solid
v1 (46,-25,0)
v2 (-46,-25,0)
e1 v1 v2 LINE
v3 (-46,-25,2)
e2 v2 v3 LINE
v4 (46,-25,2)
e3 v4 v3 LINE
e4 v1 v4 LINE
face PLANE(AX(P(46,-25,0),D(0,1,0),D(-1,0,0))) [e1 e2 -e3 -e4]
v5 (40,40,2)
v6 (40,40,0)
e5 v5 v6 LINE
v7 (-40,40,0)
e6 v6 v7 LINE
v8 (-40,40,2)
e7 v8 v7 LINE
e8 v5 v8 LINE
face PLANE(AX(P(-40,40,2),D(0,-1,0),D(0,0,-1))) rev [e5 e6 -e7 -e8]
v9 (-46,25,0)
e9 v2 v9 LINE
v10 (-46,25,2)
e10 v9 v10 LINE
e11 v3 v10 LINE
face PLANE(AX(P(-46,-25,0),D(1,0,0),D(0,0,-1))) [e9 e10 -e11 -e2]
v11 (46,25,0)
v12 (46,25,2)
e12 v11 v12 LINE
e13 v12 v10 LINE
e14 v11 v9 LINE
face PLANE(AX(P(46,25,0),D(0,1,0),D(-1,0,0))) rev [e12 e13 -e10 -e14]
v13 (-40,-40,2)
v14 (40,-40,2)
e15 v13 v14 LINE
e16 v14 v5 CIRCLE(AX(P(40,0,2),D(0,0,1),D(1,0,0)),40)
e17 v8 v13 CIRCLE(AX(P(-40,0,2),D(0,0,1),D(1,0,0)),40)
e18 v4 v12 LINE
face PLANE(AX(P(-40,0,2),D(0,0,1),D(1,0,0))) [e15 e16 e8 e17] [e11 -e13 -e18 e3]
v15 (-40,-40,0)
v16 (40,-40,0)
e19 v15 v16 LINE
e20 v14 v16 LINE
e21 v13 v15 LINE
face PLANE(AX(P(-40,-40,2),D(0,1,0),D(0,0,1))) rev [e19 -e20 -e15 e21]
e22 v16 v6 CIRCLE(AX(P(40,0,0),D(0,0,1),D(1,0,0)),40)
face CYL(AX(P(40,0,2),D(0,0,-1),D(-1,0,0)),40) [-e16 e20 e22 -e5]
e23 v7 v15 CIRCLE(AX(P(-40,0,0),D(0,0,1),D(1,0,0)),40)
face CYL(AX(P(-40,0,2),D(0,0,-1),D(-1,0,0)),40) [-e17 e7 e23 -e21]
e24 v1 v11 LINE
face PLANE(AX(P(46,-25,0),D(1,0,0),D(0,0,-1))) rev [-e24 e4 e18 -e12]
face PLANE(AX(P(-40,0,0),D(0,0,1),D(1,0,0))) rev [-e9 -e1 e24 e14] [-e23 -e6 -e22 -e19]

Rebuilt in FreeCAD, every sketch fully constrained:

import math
import FreeCAD as App
import Part
import Sketcher

V = App.Vector


def add_polygon(sketch, points):
    """Adds a closed chain of lines whose ends are joined by coincident constraints."""
    first, n = sketch.GeometryCount, len(points)
    for a, b in zip(points, points[1:] + points[:1]):
        sketch.addGeometry(Part.LineSegment(App.Vector(*a, 0), App.Vector(*b, 0)), False)
    for i in range(n):
        sketch.addConstraint(Sketcher.Constraint("Coincident", first + i, 2, first + (i + 1) % n, 1))

doc = App.newDocument("Part")
body = doc.addObject("PartDesign::Body", "Body")

# Sketch on XY plane
sketch1 = body.newObject("Sketcher::SketchObject", "Sketch")
sketch1.AttachmentSupport = (doc.getObject("XY_Plane"), [""])
sketch1.MapMode = "FlatFace"
sketch1.addGeometry([
    Part.LineSegment(V(40, 40, 0), V(-40, 40, 0)),
    Part.ArcOfCircle(Part.Circle(V(-40, 0, 0), V(0, 0, 1), 40), math.radians(90), math.radians(270)),
    Part.LineSegment(V(-40, -40, 0), V(40, -40, 0)),
    Part.ArcOfCircle(Part.Circle(V(40, 0, 0), V(0, 0, 1), 40), math.radians(-90), math.radians(90)),
], False)
sketch1.addConstraint([
    Sketcher.Constraint("Tangent", 0, 2, 1, 1),
    Sketcher.Constraint("Tangent", 1, 2, 2, 1),
    Sketcher.Constraint("Tangent", 2, 2, 3, 1),
    Sketcher.Constraint("Tangent", 3, 2, 0, 1),
    Sketcher.Constraint("Horizontal", 0),
    Sketcher.Constraint("Horizontal", 2),
    Sketcher.Constraint("Symmetric", 1, 3, 3, 3, -1, 1),
    Sketcher.Constraint("Radius", 1, 40.0),
    Sketcher.Constraint("DistanceX", 0, 2, 0, 1, 80.0),
])
pad1 = body.newObject("PartDesign::Pad", "Pad")
pad1.Profile = sketch1
pad1.Length = 2

# Sketch on XY plane
sketch2 = body.newObject("Sketcher::SketchObject", "Sketch001")
sketch2.AttachmentSupport = (doc.getObject("XY_Plane"), [""])
sketch2.MapMode = "FlatFace"
sketch2.AttachmentOffset = App.Placement(V(0, 0, 2), App.Rotation())
add_polygon(sketch2, [(-46, 25), (-46, -25), (46, -25), (46, 25)])  # lines 0-3
sketch2.addConstraint([
    Sketcher.Constraint("Vertical", 0),
    Sketcher.Constraint("Horizontal", 1),
    Sketcher.Constraint("Vertical", 2),
    Sketcher.Constraint("Horizontal", 3),
    Sketcher.Constraint("Symmetric", 0, 2, 2, 2, -1, 1),
    Sketcher.Constraint("DistanceX", 1, 1, 1, 2, 92.0),
    Sketcher.Constraint("DistanceY", 0, 2, 0, 1, 50.0),
])
pocket1 = body.newObject("PartDesign::Pocket", "Pocket")
pocket1.Profile = sketch2
pocket1.Type = "ThroughAll"

doc.recompute()
